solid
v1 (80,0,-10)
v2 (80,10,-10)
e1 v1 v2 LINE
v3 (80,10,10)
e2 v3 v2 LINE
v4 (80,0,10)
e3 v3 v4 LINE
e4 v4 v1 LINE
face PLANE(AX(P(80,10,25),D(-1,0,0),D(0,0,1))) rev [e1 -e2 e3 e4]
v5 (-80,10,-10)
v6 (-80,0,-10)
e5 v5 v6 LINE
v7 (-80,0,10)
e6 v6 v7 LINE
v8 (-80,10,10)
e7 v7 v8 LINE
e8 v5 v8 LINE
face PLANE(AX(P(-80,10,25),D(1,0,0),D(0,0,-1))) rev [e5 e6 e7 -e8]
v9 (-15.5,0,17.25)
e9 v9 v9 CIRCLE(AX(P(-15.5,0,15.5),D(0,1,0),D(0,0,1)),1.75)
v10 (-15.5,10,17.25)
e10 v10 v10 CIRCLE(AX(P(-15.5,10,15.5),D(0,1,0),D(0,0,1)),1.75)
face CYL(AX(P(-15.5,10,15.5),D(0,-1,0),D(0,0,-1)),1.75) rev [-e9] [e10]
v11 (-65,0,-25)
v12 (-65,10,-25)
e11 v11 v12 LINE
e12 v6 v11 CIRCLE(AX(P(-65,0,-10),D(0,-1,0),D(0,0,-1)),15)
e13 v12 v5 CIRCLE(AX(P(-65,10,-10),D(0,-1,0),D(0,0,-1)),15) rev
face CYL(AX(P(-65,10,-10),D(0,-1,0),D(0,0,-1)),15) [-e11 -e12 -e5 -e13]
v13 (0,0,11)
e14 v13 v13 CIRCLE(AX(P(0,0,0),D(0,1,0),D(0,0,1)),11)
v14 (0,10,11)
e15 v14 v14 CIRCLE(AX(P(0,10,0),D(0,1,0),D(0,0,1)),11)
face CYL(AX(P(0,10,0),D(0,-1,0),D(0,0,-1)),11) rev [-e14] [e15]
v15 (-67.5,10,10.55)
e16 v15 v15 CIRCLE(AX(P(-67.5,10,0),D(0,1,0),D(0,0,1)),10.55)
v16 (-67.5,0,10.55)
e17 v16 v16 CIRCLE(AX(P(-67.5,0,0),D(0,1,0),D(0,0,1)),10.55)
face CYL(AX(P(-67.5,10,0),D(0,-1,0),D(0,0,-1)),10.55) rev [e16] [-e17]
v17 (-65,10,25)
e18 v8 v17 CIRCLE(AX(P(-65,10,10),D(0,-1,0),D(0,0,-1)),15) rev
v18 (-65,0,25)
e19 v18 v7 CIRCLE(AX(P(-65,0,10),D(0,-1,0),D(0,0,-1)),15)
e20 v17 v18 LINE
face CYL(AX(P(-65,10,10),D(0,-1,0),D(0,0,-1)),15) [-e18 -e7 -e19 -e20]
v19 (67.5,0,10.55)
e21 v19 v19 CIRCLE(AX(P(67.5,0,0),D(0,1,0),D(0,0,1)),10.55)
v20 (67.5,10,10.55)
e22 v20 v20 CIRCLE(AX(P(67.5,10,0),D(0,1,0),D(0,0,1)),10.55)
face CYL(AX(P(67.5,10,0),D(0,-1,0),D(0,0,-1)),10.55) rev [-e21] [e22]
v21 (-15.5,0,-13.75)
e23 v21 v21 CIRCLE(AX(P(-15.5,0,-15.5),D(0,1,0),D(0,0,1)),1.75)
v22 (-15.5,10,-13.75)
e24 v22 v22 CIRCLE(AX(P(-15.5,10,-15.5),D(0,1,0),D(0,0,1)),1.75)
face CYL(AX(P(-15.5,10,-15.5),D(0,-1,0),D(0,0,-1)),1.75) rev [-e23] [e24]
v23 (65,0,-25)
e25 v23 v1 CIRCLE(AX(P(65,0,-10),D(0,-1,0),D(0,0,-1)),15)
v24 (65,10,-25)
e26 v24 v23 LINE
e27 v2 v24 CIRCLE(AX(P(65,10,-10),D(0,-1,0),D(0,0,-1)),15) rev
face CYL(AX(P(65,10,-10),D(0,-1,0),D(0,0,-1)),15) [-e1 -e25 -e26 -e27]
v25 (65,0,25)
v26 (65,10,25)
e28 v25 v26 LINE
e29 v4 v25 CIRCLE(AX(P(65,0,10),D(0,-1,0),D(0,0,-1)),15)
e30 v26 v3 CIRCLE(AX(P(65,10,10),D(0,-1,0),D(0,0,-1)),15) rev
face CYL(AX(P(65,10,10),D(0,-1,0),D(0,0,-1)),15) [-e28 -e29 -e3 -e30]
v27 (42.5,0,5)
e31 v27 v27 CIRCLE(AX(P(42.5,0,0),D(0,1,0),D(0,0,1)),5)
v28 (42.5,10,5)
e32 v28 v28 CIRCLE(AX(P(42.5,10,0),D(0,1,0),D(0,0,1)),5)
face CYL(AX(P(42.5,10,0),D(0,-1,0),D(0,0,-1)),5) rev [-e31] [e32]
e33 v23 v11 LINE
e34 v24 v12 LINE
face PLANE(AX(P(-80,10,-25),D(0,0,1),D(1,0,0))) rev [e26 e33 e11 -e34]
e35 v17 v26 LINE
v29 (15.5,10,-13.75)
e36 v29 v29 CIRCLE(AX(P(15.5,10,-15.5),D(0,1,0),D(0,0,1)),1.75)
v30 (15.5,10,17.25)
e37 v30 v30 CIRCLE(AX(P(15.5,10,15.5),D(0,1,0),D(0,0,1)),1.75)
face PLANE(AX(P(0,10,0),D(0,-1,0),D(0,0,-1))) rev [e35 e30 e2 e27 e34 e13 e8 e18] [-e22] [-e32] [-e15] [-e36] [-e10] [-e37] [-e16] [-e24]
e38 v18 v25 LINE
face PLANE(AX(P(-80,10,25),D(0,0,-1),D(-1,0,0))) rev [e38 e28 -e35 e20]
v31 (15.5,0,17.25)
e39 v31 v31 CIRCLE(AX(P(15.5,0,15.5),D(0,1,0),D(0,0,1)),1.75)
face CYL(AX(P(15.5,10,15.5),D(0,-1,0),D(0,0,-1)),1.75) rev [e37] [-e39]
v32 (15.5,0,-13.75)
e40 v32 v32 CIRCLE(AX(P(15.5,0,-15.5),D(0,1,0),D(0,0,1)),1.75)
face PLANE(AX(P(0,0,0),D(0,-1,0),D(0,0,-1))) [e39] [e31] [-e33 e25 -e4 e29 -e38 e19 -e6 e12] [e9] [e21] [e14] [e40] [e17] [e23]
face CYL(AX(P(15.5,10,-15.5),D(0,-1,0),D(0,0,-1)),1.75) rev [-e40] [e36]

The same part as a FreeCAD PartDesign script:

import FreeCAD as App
import Part
import Sketcher

V = App.Vector


def edges_at(feature, points):
    """Names of the edges that pass closest to the given points."""
    edges = feature.Shape.Edges
    near = lambda p: min(range(len(edges)), key=lambda i: edges[i].distToShape(Part.Vertex(*p))[0])
    return sorted({f"Edge{near(p) + 1}" for p in points})

doc = App.newDocument("Part")
body = doc.addObject("PartDesign::Body", "Body")

# Sketch on XZ plane
sketch1 = doc.addObject("Sketcher::SketchObject", "Sketch")
body.addObject(sketch1)
sketch1.AttachmentSupport = (doc.XZ_Plane, [""])
sketch1.MapMode = "FlatFace"
sketch1.addGeometry([
    Part.LineSegment(V(-80, -25, 0), V(-80, 25, 0)),  # 0
    Part.LineSegment(V(-80, 25, 0), V(80, 25, 0)),  # 1
    Part.LineSegment(V(80, 25, 0), V(80, -25, 0)),  # 2
    Part.LineSegment(V(80, -25, 0), V(-80, -25, 0)),  # 3
    Part.Circle(V(-15.5, 15.5, 0), V(0, 0, 1), 1.8),  # 4
    Part.Circle(V(15.5, 15.5, 0), V(0, 0, 1), 1.8),  # 5
    Part.Circle(V(-67.5, 0, 0), V(0, 0, 1), 10.6),  # 6
    Part.Circle(V(-15.5, -15.5, 0), V(0, 0, 1), 1.8),  # 7
    Part.Circle(V(0, 0, 0), V(0, 0, 1), 11),  # 8
    Part.Circle(V(42.5, 0, 0), V(0, 0, 1), 5),  # 9
    Part.Circle(V(67.5, 0, 0), V(0, 0, 1), 10.6),  # 10
    Part.Circle(V(15.5, -15.5, 0), V(0, 0, 1), 1.8),  # 11
], False)
sketch1.addConstraint([
    Sketcher.Constraint("Coincident", 0, 2, 1, 1),
    Sketcher.Constraint("Coincident", 1, 2, 2, 1),
    Sketcher.Constraint("Coincident", 2, 2, 3, 1),
    Sketcher.Constraint("Coincident", 3, 2, 0, 1),
    Sketcher.Constraint("Vertical", 0),
    Sketcher.Constraint("Horizontal", 1),
    Sketcher.Constraint("Vertical", 2),
    Sketcher.Constraint("Horizontal", 3),
    Sketcher.Constraint("Coincident", 8, 3, -1, 1),
    Sketcher.Constraint("Equal", 4, 5),
    Sketcher.Constraint("Equal", 5, 7),
    Sketcher.Constraint("Equal", 6, 10),
    Sketcher.Constraint("Equal", 7, 11),
    Sketcher.Constraint("Symmetric", 5, 3, 7, 3, -1, 1),
    Sketcher.Constraint("Symmetric", 6, 3, 10, 3, -1, 1),
    Sketcher.Constraint("Symmetric", 4, 3, 11, 3, -1, 1),
    Sketcher.Constraint("Symmetric", 0, 2, 2, 2, -1, 1),
    Sketcher.Constraint("Symmetric", 4, 3, 5, 3, -2),
    Sketcher.Constraint("PointOnObject", 6, 3, -1),
    Sketcher.Constraint("PointOnObject", 9, 3, -1),
    Sketcher.Constraint("Diameter", 8, 22.0),
    Sketcher.Constraint("Diameter", 9, 10.0),
    Sketcher.Constraint("Diameter", 4, 3.5),
    Sketcher.Constraint("Diameter", 6, 21.1),
    Sketcher.Constraint("DistanceX", 1, 1, 1, 2, 160.0),
    Sketcher.Constraint("DistanceY", 0, 1, 0, 2, 50.0),
    Sketcher.Constraint("DistanceX", 4, 3, 5, 3, 31.0),
    Sketcher.Constraint("DistanceX", 6, 3, 4, 3, 52.0),
    Sketcher.Constraint("DistanceY", 7, 3, 4, 3, 31.0),
    Sketcher.Constraint("DistanceX", 5, 3, 9, 3, 27.0),
])
pad1 = doc.addObject("PartDesign::Pad", "Pad")
body.addObject(pad1)
pad1.Profile = sketch1
pad1.Length = 10
pad1.Reversed = True
doc.recompute()

fillet = doc.addObject("PartDesign::Fillet", "Fillet")
body.addObject(fillet)
fillet.Base = (pad1, edges_at(pad1, [
    (80, 5, 25),
    (-80, 5, 25),
    (-80, 5, -25),
    (80, 5, -25),
]))
fillet.Radius = 15

doc.recompute()
